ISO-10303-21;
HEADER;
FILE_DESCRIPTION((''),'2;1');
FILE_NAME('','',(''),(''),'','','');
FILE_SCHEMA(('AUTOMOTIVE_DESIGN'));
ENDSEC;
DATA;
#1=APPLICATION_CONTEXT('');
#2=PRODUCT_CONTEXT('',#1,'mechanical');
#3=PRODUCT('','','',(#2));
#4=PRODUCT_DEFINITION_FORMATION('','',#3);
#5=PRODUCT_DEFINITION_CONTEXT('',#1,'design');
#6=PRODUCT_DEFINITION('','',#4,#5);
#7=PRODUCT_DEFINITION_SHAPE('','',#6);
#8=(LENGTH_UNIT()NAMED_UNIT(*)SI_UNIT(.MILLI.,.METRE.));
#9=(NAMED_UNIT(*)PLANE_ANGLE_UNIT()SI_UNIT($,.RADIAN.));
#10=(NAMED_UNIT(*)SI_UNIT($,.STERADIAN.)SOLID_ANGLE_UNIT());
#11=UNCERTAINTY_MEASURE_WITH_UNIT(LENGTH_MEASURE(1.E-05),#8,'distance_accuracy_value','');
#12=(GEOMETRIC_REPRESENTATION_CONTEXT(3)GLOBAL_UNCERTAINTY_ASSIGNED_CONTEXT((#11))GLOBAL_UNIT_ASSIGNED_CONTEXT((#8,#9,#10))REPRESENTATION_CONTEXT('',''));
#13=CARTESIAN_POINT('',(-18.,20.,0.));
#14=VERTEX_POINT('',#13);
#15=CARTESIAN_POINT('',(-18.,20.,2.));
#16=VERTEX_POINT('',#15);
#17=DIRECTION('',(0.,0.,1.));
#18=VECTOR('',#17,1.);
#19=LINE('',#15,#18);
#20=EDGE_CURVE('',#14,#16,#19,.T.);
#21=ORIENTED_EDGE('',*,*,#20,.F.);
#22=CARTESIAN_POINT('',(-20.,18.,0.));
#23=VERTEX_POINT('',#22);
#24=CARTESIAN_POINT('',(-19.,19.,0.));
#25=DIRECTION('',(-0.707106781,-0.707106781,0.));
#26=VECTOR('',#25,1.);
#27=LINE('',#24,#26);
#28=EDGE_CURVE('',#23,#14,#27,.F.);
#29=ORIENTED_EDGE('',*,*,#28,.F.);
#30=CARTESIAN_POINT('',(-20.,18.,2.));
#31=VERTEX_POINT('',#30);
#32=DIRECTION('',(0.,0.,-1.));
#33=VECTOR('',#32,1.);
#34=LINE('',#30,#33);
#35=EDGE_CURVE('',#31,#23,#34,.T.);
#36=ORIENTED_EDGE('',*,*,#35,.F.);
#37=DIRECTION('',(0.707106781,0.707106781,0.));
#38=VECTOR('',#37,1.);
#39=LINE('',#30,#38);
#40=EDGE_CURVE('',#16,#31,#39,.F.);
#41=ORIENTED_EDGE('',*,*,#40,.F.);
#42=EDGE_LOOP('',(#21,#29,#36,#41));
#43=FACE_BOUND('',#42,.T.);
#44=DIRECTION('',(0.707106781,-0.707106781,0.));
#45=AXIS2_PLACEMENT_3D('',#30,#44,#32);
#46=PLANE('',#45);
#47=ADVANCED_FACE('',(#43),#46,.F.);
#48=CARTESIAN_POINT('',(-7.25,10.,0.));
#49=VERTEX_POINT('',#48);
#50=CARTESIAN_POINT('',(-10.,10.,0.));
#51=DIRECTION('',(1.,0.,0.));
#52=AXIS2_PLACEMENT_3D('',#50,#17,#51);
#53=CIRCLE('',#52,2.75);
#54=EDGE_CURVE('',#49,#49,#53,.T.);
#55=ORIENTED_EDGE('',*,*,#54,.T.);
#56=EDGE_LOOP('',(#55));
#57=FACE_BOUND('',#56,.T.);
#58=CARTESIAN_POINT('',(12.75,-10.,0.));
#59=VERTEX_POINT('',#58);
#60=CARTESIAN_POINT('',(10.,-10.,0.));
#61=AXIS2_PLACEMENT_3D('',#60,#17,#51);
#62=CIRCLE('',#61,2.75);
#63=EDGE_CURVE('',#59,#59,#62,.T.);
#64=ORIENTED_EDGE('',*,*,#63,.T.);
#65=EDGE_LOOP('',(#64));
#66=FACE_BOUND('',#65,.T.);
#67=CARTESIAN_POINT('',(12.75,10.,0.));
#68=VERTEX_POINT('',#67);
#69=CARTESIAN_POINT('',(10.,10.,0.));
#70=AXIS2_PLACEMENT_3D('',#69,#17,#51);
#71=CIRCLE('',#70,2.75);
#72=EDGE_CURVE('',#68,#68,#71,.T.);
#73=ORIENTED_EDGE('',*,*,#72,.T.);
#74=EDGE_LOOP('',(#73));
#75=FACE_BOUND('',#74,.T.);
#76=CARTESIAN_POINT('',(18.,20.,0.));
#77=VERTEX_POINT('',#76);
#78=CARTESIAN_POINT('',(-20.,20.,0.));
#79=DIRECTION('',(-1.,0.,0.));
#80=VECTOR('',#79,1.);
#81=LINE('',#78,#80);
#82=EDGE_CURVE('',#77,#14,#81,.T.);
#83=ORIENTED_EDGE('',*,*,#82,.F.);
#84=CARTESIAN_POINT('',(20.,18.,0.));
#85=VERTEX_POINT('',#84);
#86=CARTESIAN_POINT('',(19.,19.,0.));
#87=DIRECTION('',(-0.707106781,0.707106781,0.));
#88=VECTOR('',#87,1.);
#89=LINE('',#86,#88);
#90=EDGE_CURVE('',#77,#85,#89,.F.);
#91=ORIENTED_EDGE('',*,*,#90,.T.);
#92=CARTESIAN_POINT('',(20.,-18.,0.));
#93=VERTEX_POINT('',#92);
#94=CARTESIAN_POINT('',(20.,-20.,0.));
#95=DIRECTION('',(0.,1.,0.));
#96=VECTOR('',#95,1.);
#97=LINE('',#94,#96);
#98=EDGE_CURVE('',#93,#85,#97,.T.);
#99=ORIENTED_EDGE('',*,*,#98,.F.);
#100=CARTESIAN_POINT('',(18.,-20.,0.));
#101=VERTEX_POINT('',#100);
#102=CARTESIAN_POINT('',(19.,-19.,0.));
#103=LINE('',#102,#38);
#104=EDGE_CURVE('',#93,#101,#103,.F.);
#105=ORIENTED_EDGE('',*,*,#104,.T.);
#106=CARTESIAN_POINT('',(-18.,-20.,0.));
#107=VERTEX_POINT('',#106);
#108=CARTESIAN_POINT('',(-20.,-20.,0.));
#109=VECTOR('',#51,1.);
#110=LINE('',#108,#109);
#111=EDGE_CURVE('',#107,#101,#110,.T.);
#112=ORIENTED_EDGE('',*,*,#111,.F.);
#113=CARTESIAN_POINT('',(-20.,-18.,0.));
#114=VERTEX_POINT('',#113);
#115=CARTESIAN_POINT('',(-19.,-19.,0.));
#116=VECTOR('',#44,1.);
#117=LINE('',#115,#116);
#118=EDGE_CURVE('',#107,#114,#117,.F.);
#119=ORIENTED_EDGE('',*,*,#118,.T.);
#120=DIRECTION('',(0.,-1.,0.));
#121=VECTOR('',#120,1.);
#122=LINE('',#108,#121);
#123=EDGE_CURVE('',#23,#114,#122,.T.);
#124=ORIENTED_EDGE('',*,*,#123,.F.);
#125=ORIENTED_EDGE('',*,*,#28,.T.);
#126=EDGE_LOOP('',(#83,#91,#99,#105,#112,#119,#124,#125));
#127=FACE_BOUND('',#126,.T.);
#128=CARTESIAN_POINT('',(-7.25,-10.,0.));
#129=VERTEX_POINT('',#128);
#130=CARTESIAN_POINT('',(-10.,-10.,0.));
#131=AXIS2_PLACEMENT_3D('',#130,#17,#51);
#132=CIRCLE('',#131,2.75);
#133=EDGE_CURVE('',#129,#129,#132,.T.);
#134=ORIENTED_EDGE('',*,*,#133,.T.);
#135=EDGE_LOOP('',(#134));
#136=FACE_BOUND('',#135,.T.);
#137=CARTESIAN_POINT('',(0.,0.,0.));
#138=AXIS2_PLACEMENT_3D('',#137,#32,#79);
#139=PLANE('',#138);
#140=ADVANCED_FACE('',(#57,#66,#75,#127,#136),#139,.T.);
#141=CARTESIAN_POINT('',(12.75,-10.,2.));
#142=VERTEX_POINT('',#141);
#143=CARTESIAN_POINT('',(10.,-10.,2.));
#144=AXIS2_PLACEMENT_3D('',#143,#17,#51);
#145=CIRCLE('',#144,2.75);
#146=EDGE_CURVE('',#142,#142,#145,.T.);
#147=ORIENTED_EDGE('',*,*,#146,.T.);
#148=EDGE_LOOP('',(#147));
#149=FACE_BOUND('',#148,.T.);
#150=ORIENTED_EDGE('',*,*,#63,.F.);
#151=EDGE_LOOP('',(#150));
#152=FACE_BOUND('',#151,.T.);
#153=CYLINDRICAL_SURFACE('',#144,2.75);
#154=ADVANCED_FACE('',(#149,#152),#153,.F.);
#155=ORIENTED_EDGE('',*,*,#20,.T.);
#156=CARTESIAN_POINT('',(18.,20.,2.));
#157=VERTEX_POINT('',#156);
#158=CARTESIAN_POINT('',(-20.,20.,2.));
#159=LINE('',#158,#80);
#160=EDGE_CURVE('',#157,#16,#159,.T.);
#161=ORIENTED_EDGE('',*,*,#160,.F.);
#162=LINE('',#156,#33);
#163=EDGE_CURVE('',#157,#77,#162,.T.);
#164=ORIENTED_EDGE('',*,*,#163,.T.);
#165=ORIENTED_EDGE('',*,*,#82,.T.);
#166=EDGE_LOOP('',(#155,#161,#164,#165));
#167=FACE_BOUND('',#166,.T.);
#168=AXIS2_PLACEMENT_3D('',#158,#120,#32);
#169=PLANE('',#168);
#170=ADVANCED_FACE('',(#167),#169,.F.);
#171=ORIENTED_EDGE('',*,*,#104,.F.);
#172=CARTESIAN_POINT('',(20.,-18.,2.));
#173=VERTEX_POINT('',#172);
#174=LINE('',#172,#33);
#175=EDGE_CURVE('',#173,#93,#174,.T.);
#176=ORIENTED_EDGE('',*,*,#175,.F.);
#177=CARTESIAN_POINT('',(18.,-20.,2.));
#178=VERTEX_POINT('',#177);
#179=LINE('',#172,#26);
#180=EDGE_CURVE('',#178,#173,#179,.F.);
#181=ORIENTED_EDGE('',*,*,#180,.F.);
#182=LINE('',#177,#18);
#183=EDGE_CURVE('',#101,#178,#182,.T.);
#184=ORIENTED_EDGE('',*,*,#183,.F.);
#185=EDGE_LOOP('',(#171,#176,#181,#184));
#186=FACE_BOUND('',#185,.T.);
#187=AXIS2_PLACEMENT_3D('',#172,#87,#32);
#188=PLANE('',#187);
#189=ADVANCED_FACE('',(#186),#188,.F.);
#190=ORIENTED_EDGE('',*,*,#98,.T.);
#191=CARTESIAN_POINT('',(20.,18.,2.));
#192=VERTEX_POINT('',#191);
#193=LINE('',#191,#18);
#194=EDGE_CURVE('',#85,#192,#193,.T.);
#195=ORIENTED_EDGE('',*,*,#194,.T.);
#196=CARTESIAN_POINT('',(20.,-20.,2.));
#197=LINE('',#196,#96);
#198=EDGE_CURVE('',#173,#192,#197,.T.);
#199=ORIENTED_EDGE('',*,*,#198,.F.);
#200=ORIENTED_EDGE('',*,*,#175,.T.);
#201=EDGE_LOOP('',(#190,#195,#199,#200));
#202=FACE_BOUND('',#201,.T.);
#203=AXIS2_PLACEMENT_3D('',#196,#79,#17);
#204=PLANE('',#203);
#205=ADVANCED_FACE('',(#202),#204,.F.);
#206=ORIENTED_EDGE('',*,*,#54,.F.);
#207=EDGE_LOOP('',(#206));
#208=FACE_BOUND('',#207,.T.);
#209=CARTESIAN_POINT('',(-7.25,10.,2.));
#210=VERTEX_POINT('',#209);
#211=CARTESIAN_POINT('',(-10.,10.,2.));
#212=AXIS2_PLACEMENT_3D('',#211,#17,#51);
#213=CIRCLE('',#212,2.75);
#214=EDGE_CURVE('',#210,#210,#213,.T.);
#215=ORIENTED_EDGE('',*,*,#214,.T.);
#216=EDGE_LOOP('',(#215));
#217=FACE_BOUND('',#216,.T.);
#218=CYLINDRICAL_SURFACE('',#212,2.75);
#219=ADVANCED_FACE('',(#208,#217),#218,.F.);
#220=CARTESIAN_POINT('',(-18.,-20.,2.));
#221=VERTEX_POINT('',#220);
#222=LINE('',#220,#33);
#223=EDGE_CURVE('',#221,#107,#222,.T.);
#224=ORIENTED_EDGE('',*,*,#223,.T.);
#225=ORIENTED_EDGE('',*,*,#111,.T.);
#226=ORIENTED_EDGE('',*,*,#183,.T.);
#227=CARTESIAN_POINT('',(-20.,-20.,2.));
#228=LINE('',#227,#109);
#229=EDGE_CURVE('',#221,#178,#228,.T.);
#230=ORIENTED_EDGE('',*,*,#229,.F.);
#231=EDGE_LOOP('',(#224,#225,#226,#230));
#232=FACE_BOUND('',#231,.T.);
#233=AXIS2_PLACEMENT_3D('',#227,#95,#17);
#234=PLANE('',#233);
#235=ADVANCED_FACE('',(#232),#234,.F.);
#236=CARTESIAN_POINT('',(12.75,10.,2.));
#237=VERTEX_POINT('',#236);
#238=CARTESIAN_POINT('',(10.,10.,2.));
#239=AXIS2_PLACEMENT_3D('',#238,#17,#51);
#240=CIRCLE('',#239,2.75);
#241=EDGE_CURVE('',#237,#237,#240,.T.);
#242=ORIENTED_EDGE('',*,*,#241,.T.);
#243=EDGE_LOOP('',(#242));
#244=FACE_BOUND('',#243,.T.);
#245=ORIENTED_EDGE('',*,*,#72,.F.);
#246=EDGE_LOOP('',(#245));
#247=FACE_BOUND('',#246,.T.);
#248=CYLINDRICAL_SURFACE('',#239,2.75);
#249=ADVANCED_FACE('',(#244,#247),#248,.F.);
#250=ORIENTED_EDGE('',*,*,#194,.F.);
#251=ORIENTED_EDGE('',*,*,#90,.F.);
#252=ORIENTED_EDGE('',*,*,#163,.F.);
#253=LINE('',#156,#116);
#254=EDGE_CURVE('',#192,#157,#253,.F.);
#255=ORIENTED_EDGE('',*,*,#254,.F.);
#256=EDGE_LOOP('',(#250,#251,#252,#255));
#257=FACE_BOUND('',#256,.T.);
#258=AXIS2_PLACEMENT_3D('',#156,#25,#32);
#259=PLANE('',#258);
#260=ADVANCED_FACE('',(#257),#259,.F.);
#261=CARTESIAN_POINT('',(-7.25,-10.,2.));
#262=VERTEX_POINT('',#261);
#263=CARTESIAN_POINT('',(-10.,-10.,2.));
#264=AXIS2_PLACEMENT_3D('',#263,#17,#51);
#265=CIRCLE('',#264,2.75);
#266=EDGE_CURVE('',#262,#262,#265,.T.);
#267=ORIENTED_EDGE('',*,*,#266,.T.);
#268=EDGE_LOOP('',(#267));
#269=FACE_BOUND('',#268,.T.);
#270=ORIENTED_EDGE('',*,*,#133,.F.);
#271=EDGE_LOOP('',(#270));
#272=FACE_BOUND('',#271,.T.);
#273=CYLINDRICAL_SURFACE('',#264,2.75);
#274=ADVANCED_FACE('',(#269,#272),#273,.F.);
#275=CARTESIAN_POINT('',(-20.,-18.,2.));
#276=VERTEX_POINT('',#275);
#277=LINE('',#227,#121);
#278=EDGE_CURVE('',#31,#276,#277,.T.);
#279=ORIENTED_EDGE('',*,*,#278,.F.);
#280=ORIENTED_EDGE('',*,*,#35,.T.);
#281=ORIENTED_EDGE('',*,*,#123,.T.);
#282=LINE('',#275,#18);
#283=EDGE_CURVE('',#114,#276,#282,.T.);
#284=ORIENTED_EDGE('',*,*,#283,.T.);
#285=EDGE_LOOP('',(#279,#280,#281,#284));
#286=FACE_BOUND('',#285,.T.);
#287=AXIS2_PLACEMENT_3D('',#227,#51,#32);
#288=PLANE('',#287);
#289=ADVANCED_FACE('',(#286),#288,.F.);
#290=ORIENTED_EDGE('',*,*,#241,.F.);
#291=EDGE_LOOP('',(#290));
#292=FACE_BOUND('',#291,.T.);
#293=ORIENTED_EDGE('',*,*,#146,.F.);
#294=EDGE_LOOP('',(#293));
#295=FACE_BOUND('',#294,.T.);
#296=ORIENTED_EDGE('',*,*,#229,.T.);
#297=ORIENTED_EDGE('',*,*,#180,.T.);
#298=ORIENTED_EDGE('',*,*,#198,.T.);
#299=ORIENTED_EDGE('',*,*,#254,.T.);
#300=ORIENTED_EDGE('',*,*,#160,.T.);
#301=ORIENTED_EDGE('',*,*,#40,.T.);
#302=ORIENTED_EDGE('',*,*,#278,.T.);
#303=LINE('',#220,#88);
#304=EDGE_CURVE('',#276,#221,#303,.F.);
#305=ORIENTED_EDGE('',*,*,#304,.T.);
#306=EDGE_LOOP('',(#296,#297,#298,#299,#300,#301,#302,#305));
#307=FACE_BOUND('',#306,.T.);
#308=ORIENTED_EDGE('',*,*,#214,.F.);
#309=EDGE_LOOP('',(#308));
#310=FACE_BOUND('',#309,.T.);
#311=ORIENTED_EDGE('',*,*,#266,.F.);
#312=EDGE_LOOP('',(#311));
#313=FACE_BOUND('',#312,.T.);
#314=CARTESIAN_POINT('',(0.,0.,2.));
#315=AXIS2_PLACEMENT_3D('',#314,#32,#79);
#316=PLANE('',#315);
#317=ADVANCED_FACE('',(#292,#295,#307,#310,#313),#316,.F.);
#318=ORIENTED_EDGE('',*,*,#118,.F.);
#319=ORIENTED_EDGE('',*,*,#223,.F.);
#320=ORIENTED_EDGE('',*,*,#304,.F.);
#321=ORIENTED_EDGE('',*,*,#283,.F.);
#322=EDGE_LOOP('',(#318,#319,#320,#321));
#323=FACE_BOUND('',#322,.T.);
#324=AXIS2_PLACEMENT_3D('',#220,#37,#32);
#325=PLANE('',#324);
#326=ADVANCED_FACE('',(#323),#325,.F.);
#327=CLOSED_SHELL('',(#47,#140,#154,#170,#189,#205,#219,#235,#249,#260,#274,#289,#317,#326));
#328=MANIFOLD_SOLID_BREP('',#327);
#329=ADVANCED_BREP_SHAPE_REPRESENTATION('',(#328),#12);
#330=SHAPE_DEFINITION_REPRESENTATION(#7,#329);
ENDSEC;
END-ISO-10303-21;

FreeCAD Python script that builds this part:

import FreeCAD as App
import Part
import Sketcher
from FreeCAD import Vector


def edges_at(feature, points):
    """Names of the edges that pass closest to the given points."""
    edges = feature.Shape.Edges
    near = lambda p: min(range(len(edges)), key=lambda i: edges[i].distToShape(Part.Vertex(*p))[0])
    return sorted({f"Edge{near(p) + 1}" for p in points})


def add_polygon(sketch, points):
    """Adds a closed chain of lines whose ends are joined by coincident constraints."""
    first, n = sketch.GeometryCount, len(points)
    for a, b in zip(points, points[1:] + points[:1]):
        sketch.addGeometry(Part.LineSegment(App.Vector(*a, 0), App.Vector(*b, 0)), False)
    for i in range(n):
        sketch.addConstraint(Sketcher.Constraint("Coincident", first + i, 2, first + (i + 1) % n, 1))

doc = App.newDocument("Part")
body = doc.addObject("PartDesign::Body", "Body")

# Sketch on XY plane
sketch1 = body.newObject("Sketcher::SketchObject", "Sketch")
sketch1.AttachmentSupport = (doc.getObject("XY_Plane"), [""])
sketch1.MapMode = "FlatFace"
add_polygon(sketch1, [(-20, 20), (-20, -20), (20, -20), (20, 20)])  # lines 0-3
sketch1.addConstraint(Sketcher.Constraint("Vertical", 0))
sketch1.addConstraint(Sketcher.Constraint("Horizontal", 1))
sketch1.addConstraint(Sketcher.Constraint("Vertical", 2))
sketch1.addConstraint(Sketcher.Constraint("Horizontal", 3))
sketch1.addConstraint(Sketcher.Constraint("Symmetric", 0, 2, 2, 2, -1, 1))
sketch1.addConstraint(Sketcher.Constraint("Equal", 3, 0))
sketch1.addConstraint(Sketcher.Constraint("DistanceX", 1, 1, 1, 2, 40.0))
pad1 = body.newObject("PartDesign::Pad", "Pad")
pad1.Profile = sketch1
pad1.Length = 2
doc.recompute()

chamfer = body.newObject("PartDesign::Chamfer", "Chamfer")
chamfer.Base = (pad1, edges_at(pad1, [
    (20, -20, 1),
    (-20, -20, 1),
    (-20, 20, 1),
    (20, 20, 1),
]))
chamfer.Size = 2

# Sketch on XY plane
sketch2 = body.newObject("Sketcher::SketchObject", "Sketch001")
sketch2.AttachmentSupport = (doc.getObject("XY_Plane"), [""])
sketch2.MapMode = "FlatFace"
sketch2.AttachmentOffset = App.Placement(Vector(0, 0, 2), App.Rotation())
sketch2.addGeometry(Part.Circle(Vector(-10, 10, 0), Vector(0, 0, 1), 2.8), False)
sketch2.addGeometry(Part.Circle(Vector(10, 10, 0), Vector(0, 0, 1), 2.8), False)
sketch2.addGeometry(Part.Circle(Vector(-10, -10, 0), Vector(0, 0, 1), 2.8), False)
sketch2.addGeometry(Part.Circle(Vector(10, -10, 0), Vector(0, 0, 1), 2.8), False)
sketch2.addGeometry(Part.Circle(Vector(-10, 30, 0), Vector(0, 0, 1), 2.8), False)
sketch2.addGeometry(Part.Circle(Vector(10, 30, 0), Vector(0, 0, 1), 2.8), False)
sketch2.addGeometry(Part.Circle(Vector(10, -30, 0), Vector(0, 0, 1), 2.8), False)
sketch2.addGeometry(Part.Circle(Vector(-10, -30, 0), Vector(0, 0, 1), 2.8), False)
sketch2.addConstraint(Sketcher.Constraint("Equal", 0, 1))
sketch2.addConstraint(Sketcher.Constraint("Equal", 1, 2))
sketch2.addConstraint(Sketcher.Constraint("Equal", 2, 3))
sketch2.addConstraint(Sketcher.Constraint("Equal", 3, 4))
sketch2.addConstraint(Sketcher.Constraint("Equal", 4, 5))
sketch2.addConstraint(Sketcher.Constraint("Equal", 5, 6))
sketch2.addConstraint(Sketcher.Constraint("Equal", 6, 7))
sketch2.addConstraint(Sketcher.Constraint("Symmetric", 1, 3, 2, 3, -1, 1))
sketch2.addConstraint(Sketcher.Constraint("Symmetric", 0, 3, 3, 3, -1, 1))
sketch2.addConstraint(Sketcher.Constraint("Symmetric", 4, 3, 6, 3, -1, 1))
sketch2.addConstraint(Sketcher.Constraint("Symmetric", 5, 3, 7, 3, -1, 1))
sketch2.addConstraint(Sketcher.Constraint("Symmetric", 0, 3, 1, 3, -2))
sketch2.addConstraint(Sketcher.Constraint("Symmetric", 4, 3, 5, 3, -2))
sketch2.addConstraint(Sketcher.Constraint("Vertical", 2, 3, 4, 3))
sketch2.addConstraint(Sketcher.Constraint("Diameter", 0, 5.5))
sketch2.addConstraint(Sketcher.Constraint("DistanceX", 0, 3, -1, 1, 10.0))
sketch2.addConstraint(Sketcher.Constraint("DistanceY", -1, 1, 0, 3, 10.0))
sketch2.addConstraint(Sketcher.Constraint("DistanceY", -1, 1, 4, 3, 30.0))
doc.recompute()
hole = body.newObject("PartDesign::Hole", "Hole")
hole.Profile = sketch2
hole.ThreadType = "None"
hole.Diameter = 5.5
hole.DepthType = "ThroughAll"

doc.recompute()
